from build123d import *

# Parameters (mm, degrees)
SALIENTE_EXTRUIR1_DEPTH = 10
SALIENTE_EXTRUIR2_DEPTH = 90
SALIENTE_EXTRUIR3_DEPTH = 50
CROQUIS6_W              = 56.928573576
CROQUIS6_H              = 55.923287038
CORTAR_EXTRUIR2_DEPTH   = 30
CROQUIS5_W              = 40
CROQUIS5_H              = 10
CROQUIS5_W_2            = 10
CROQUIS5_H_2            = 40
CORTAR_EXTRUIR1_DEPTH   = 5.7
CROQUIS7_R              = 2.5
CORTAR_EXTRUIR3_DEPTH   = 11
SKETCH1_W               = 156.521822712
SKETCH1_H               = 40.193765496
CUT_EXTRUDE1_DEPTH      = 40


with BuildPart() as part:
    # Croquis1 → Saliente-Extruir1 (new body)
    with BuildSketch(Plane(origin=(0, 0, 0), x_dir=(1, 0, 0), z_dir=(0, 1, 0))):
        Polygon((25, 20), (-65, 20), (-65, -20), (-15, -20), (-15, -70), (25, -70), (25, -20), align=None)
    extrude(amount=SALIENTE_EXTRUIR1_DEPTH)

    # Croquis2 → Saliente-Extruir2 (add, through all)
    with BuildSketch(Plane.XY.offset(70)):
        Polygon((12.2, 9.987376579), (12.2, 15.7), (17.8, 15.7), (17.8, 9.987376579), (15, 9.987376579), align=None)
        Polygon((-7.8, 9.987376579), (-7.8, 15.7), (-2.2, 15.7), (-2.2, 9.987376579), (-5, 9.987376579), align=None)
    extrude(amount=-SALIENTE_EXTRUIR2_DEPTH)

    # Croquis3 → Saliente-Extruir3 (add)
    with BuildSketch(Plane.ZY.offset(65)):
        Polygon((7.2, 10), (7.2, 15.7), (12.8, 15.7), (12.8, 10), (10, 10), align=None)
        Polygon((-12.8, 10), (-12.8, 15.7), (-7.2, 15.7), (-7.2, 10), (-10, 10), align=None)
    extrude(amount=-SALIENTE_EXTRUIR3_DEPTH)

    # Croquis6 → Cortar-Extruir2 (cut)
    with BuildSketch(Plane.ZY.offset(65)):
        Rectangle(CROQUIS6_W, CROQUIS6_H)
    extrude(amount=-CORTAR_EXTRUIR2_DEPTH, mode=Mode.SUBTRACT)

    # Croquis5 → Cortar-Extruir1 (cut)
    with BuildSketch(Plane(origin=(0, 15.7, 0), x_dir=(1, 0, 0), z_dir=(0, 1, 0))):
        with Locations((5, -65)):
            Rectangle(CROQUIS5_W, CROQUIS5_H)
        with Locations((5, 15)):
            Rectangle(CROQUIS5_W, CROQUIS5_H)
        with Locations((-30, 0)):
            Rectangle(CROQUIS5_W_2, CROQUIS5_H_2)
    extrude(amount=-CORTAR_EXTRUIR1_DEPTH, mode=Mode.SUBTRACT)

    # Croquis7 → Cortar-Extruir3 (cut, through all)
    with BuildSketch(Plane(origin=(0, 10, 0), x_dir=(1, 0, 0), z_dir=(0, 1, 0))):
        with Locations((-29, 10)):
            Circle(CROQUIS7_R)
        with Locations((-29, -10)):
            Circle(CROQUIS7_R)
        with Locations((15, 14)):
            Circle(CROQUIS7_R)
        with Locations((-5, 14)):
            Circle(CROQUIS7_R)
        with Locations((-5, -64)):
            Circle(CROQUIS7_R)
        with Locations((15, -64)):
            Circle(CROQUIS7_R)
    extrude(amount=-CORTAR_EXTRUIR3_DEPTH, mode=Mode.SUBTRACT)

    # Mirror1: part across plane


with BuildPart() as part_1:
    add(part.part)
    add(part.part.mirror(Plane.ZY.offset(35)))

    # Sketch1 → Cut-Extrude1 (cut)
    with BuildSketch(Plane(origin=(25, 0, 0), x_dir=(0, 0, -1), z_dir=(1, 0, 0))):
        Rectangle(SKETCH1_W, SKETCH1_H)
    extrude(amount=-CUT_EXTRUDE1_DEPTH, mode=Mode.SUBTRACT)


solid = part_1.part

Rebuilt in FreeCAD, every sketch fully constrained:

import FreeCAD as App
import Part
import Sketcher
from FreeCAD import Vector
Q = App.Units.Quantity

doc = App.newDocument("Part")
body = doc.addObject("PartDesign::Body", "Body")

# Sketch on XZ plane
sketch1 = doc.addObject("Sketcher::SketchObject", "Sketch")
body.addObject(sketch1)
sketch1.AttachmentSupport = (doc.XZ_Plane, [""])
sketch1.MapMode = "FlatFace"
sketch1.addGeometry(Part.LineSegment(Vector(25, -20, 0), Vector(-65, -20, 0)), False)
sketch1.addGeometry(Part.LineSegment(Vector(-65, -20, 0), Vector(-65, 20, 0)), False)
sketch1.addGeometry(Part.LineSegment(Vector(-65, 20, 0), Vector(-15, 20, 0)), False)
sketch1.addGeometry(Part.LineSegment(Vector(-15, 20, 0), Vector(-15, 70, 0)), False)
sketch1.addGeometry(Part.LineSegment(Vector(-15, 70, 0), Vector(25, 70, 0)), False)
sketch1.addGeometry(Part.LineSegment(Vector(25, 70, 0), Vector(25, -20, 0)), False)
sketch1.addConstraint(Sketcher.Constraint("Coincident", 0, 2, 1, 1))
sketch1.addConstraint(Sketcher.Constraint("Coincident", 1, 2, 2, 1))
sketch1.addConstraint(Sketcher.Constraint("Coincident", 2, 2, 3, 1))
sketch1.addConstraint(Sketcher.Constraint("Coincident", 3, 2, 4, 1))
sketch1.addConstraint(Sketcher.Constraint("Coincident", 4, 2, 5, 1))
sketch1.addConstraint(Sketcher.Constraint("Coincident", 5, 2, 0, 1))
sketch1.addConstraint(Sketcher.Constraint("Horizontal", 0))
sketch1.addConstraint(Sketcher.Constraint("Vertical", 1))
sketch1.addConstraint(Sketcher.Constraint("Horizontal", 2))
sketch1.addConstraint(Sketcher.Constraint("Vertical", 3))
sketch1.addConstraint(Sketcher.Constraint("Horizontal", 4))
sketch1.addConstraint(Sketcher.Constraint("Vertical", 5))
sketch1.addConstraint(Sketcher.Constraint("Equal", 4, 1))
sketch1.addConstraint(Sketcher.Constraint("Equal", 2, 3))
sketch1.addConstraint(Sketcher.Constraint("DistanceX", 0, 2, 0, 1, Q("90 mm")))
sketch1.addConstraint(Sketcher.Constraint("DistanceX", 2, 1, 2, 2, Q("50 mm")))
sketch1.addConstraint(Sketcher.Constraint("DistanceX", 0, 2, -1, 1, Q("65 mm")))
sketch1.addConstraint(Sketcher.Constraint("DistanceY", 0, 2, -1, 1, Q("20 mm")))
pad1 = doc.addObject("PartDesign::Pad", "Pad")
body.addObject(pad1)
pad1.Profile = sketch1
pad1.Length = 10
pad1.Reversed = True

# Sketch on XY plane
sketch2 = doc.addObject("Sketcher::SketchObject", "Sketch001")
body.addObject(sketch2)
sketch2.AttachmentSupport = (doc.XY_Plane, [""])
sketch2.MapMode = "FlatFace"
sketch2.AttachmentOffset = App.Placement(Vector(0, 0, 70), App.Rotation())
sketch2.addGeometry(Part.LineSegment(Vector(12.2, 15.7, 0), Vector(12.2, 9.987377, 0)), False)
sketch2.addGeometry(Part.LineSegment(Vector(12.2, 9.987377, 0), Vector(17.8, 9.987377, 0)), False)
sketch2.addGeometry(Part.LineSegment(Vector(17.8, 9.987377, 0), Vector(17.8, 15.7, 0)), False)
sketch2.addGeometry(Part.LineSegment(Vector(17.8, 15.7, 0), Vector(12.2, 15.7, 0)), False)
sketch2.addGeometry(Part.LineSegment(Vector(-7.8, 15.7, 0), Vector(-7.8, 9.987377, 0)), False)
sketch2.addGeometry(Part.LineSegment(Vector(-7.8, 9.987377, 0), Vector(-2.2, 9.987377, 0)), False)
sketch2.addGeometry(Part.LineSegment(Vector(-2.2, 9.987377, 0), Vector(-2.2, 15.7, 0)), False)
sketch2.addGeometry(Part.LineSegment(Vector(-2.2, 15.7, 0), Vector(-7.8, 15.7, 0)), False)
sketch2.addConstraint(Sketcher.Constraint("Coincident", 0, 2, 1, 1))
sketch2.addConstraint(Sketcher.Constraint("Coincident", 1, 2, 2, 1))
sketch2.addConstraint(Sketcher.Constraint("Coincident", 2, 2, 3, 1))
sketch2.addConstraint(Sketcher.Constraint("Coincident", 3, 2, 0, 1))
sketch2.addConstraint(Sketcher.Constraint("Coincident", 4, 2, 5, 1))
sketch2.addConstraint(Sketcher.Constraint("Coincident", 5, 2, 6, 1))
sketch2.addConstraint(Sketcher.Constraint("Coincident", 6, 2, 7, 1))
sketch2.addConstraint(Sketcher.Constraint("Coincident", 7, 2, 4, 1))
sketch2.addConstraint(Sketcher.Constraint("Vertical", 0))
sketch2.addConstraint(Sketcher.Constraint("Horizontal", 1))
sketch2.addConstraint(Sketcher.Constraint("Vertical", 2))
sketch2.addConstraint(Sketcher.Constraint("Horizontal", 3))
sketch2.addConstraint(Sketcher.Constraint("Vertical", 4))
sketch2.addConstraint(Sketcher.Constraint("Horizontal", 5))
sketch2.addConstraint(Sketcher.Constraint("Vertical", 6))
sketch2.addConstraint(Sketcher.Constraint("Horizontal", 7))
sketch2.addConstraint(Sketcher.Constraint("Horizontal", 1, 2, 4, 2))
sketch2.addConstraint(Sketcher.Constraint("Horizontal", 3, 2, 6, 2))
sketch2.addConstraint(Sketcher.Constraint("Equal", 3, 5))
sketch2.addConstraint(Sketcher.Constraint("DistanceX", 1, 1, 1, 2, Q("5.6 mm")))
sketch2.addConstraint(Sketcher.Constraint("DistanceX", 4, 2, 0, 2, Q("20 mm")))
sketch2.addConstraint(Sketcher.Constraint("DistanceX", -1, 1, 0, 2, Q("12.2 mm")))
sketch2.addConstraint(Sketcher.Constraint("DistanceY", -1, 1, 2, 2, Q("15.7 mm")))
sketch2.addConstraint(Sketcher.Constraint("DistanceY", 0, 2, 0, 1, Q("5.712623 mm")))
pad2 = doc.addObject("PartDesign::Pad", "Pad001")
body.addObject(pad2)
pad2.Profile = sketch2
pad2.Length = 90
pad2.Reversed = True

# Sketch on YZ plane
sketch3 = doc.addObject("Sketcher::SketchObject", "Sketch002")
body.addObject(sketch3)
sketch3.AttachmentSupport = (doc.YZ_Plane, [""])
sketch3.MapMode = "FlatFace"
sketch3.AttachmentOffset = App.Placement(Vector(0, 0, -65), App.Rotation())
sketch3.addGeometry(Part.LineSegment(Vector(15.7, 7.2, 0), Vector(10, 7.2, 0)), False)
sketch3.addGeometry(Part.LineSegment(Vector(10, 7.2, 0), Vector(10, 12.8, 0)), False)
sketch3.addGeometry(Part.LineSegment(Vector(10, 12.8, 0), Vector(15.7, 12.8, 0)), False)
sketch3.addGeometry(Part.LineSegment(Vector(15.7, 12.8, 0), Vector(15.7, 7.2, 0)), False)
sketch3.addGeometry(Part.LineSegment(Vector(15.7, -12.8, 0), Vector(10, -12.8, 0)), False)
sketch3.addGeometry(Part.LineSegment(Vector(10, -12.8, 0), Vector(10, -7.2, 0)), False)
sketch3.addGeometry(Part.LineSegment(Vector(10, -7.2, 0), Vector(15.7, -7.2, 0)), False)
sketch3.addGeometry(Part.LineSegment(Vector(15.7, -7.2, 0), Vector(15.7, -12.8, 0)), False)
sketch3.addConstraint(Sketcher.Constraint("Coincident", 0, 2, 1, 1))
sketch3.addConstraint(Sketcher.Constraint("Coincident", 1, 2, 2, 1))
sketch3.addConstraint(Sketcher.Constraint("Coincident", 2, 2, 3, 1))
sketch3.addConstraint(Sketcher.Constraint("Coincident", 3, 2, 0, 1))
sketch3.addConstraint(Sketcher.Constraint("Coincident", 4, 2, 5, 1))
sketch3.addConstraint(Sketcher.Constraint("Coincident", 5, 2, 6, 1))
sketch3.addConstraint(Sketcher.Constraint("Coincident", 6, 2, 7, 1))
sketch3.addConstraint(Sketcher.Constraint("Coincident", 7, 2, 4, 1))
sketch3.addConstraint(Sketcher.Constraint("Horizontal", 0))
sketch3.addConstraint(Sketcher.Constraint("Vertical", 1))
sketch3.addConstraint(Sketcher.Constraint("Horizontal", 2))
sketch3.addConstraint(Sketcher.Constraint("Vertical", 3))
sketch3.addConstraint(Sketcher.Constraint("Horizontal", 4))
sketch3.addConstraint(Sketcher.Constraint("Vertical", 5))
sketch3.addConstraint(Sketcher.Constraint("Horizontal", 6))
sketch3.addConstraint(Sketcher.Constraint("Vertical", 7))
sketch3.addConstraint(Sketcher.Constraint("Symmetric", 1, 2, 4, 2, -1))
sketch3.addConstraint(Sketcher.Constraint("Symmetric", 3, 2, 6, 2, -1))
sketch3.addConstraint(Sketcher.Constraint("DistanceX", 0, 2, 0, 1, Q("5.7 mm")))
sketch3.addConstraint(Sketcher.Constraint("DistanceY", 1, 1, 1, 2, Q("5.6 mm")))
sketch3.addConstraint(Sketcher.Constraint("DistanceX", -1, 1, 0, 2, Q("10 mm")))
sketch3.addConstraint(Sketcher.Constraint("DistanceY", 4, 2, 0, 2, Q("20 mm")))
pad3 = doc.addObject("PartDesign::Pad", "Pad002")
body.addObject(pad3)
pad3.Profile = sketch3
pad3.Length = 50

# Sketch on YZ plane
sketch4 = doc.addObject("Sketcher::SketchObject", "Sketch003")
body.addObject(sketch4)
sketch4.AttachmentSupport = (doc.YZ_Plane, [""])
sketch4.MapMode = "FlatFace"
sketch4.AttachmentOffset = App.Placement(Vector(0, 0, -65), App.Rotation())
sketch4.addGeometry(Part.LineSegment(Vector(27.961644, -28.464287, 0), Vector(-27.961644, -28.464287, 0)), False)
sketch4.addGeometry(Part.LineSegment(Vector(-27.961644, -28.464287, 0), Vector(-27.961644, 28.464287, 0)), False)
sketch4.addGeometry(Part.LineSegment(Vector(-27.961644, 28.464287, 0), Vector(27.961644, 28.464287, 0)), False)
sketch4.addGeometry(Part.LineSegment(Vector(27.961644, 28.464287, 0), Vector(27.961644, -28.464287, 0)), False)
sketch4.addConstraint(Sketcher.Constraint("Coincident", 0, 2, 1, 1))
sketch4.addConstraint(Sketcher.Constraint("Coincident", 1, 2, 2, 1))
sketch4.addConstraint(Sketcher.Constraint("Coincident", 2, 2, 3, 1))
sketch4.addConstraint(Sketcher.Constraint("Coincident", 3, 2, 0, 1))
sketch4.addConstraint(Sketcher.Constraint("Horizontal", 0))
sketch4.addConstraint(Sketcher.Constraint("Vertical", 1))
sketch4.addConstraint(Sketcher.Constraint("Horizontal", 2))
sketch4.addConstraint(Sketcher.Constraint("Vertical", 3))
sketch4.addConstraint(Sketcher.Constraint("Symmetric", 0, 2, 2, 2, -1, 1))
sketch4.addConstraint(Sketcher.Constraint("DistanceX", 0, 2, 0, 1, Q("55.923287 mm")))
sketch4.addConstraint(Sketcher.Constraint("DistanceY", 1, 1, 1, 2, Q("56.928574 mm")))
pocket1 = doc.addObject("PartDesign::Pocket", "Pocket")
body.addObject(pocket1)
pocket1.Profile = sketch4
pocket1.Length = 30
pocket1.Reversed = True

# Sketch on XZ plane
sketch5 = doc.addObject("Sketcher::SketchObject", "Sketch004")
body.addObject(sketch5)
sketch5.AttachmentSupport = (doc.XZ_Plane, [""])
sketch5.MapMode = "FlatFace"
sketch5.AttachmentOffset = App.Placement(Vector(0, 0, -15.7), App.Rotation())
sketch5.addGeometry(Part.LineSegment(Vector(-15, 60, 0), Vector(-15, 70, 0)), False)
sketch5.addGeometry(Part.LineSegment(Vector(-15, 70, 0), Vector(25, 70, 0)), False)
sketch5.addGeometry(Part.LineSegment(Vector(25, 70, 0), Vector(25, 60, 0)), False)
sketch5.addGeometry(Part.LineSegment(Vector(25, 60, 0), Vector(-15, 60, 0)), False)
sketch5.addGeometry(Part.LineSegment(Vector(-15, -20, 0), Vector(-15, -10, 0)), False)
sketch5.addGeometry(Part.LineSegment(Vector(-15, -10, 0), Vector(25, -10, 0)), False)
sketch5.addGeometry(Part.LineSegment(Vector(25, -10, 0), Vector(25, -20, 0)), False)
sketch5.addGeometry(Part.LineSegment(Vector(25, -20, 0), Vector(-15, -20, 0)), False)
sketch5.addGeometry(Part.LineSegment(Vector(-35, -20, 0), Vector(-35, 20, 0)), False)
sketch5.addGeometry(Part.LineSegment(Vector(-35, 20, 0), Vector(-25, 20, 0)), False)
sketch5.addGeometry(Part.LineSegment(Vector(-25, 20, 0), Vector(-25, -20, 0)), False)
sketch5.addGeometry(Part.LineSegment(Vector(-25, -20, 0), Vector(-35, -20, 0)), False)
sketch5.addConstraint(Sketcher.Constraint("Coincident", 0, 2, 1, 1))
sketch5.addConstraint(Sketcher.Constraint("Coincident", 1, 2, 2, 1))
sketch5.addConstraint(Sketcher.Constraint("Coincident", 2, 2, 3, 1))
sketch5.addConstraint(Sketcher.Constraint("Coincident", 3, 2, 0, 1))
sketch5.addConstraint(Sketcher.Constraint("Coincident", 4, 2, 5, 1))
sketch5.addConstraint(Sketcher.Constraint("Coincident", 5, 2, 6, 1))
sketch5.addConstraint(Sketcher.Constraint("Coincident", 6, 2, 7, 1))
sketch5.addConstraint(Sketcher.Constraint("Coincident", 7, 2, 4, 1))
sketch5.addConstraint(Sketcher.Constraint("Coincident", 8, 2, 9, 1))
sketch5.addConstraint(Sketcher.Constraint("Coincident", 9, 2, 10, 1))
sketch5.addConstraint(Sketcher.Constraint("Coincident", 10, 2, 11, 1))
sketch5.addConstraint(Sketcher.Constraint("Coincident", 11, 2, 8, 1))
sketch5.addConstraint(Sketcher.Constraint("Vertical", 0))
sketch5.addConstraint(Sketcher.Constraint("Horizontal", 1))
sketch5.addConstraint(Sketcher.Constraint("Vertical", 2))
sketch5.addConstraint(Sketcher.Constraint("Horizontal", 3))
sketch5.addConstraint(Sketcher.Constraint("Vertical", 4))
sketch5.addConstraint(Sketcher.Constraint("Horizontal", 5))
sketch5.addConstraint(Sketcher.Constraint("Vertical", 6))
sketch5.addConstraint(Sketcher.Constraint("Horizontal", 7))
sketch5.addConstraint(Sketcher.Constraint("Vertical", 8))
sketch5.addConstraint(Sketcher.Constraint("Horizontal", 9))
sketch5.addConstraint(Sketcher.Constraint("Vertical", 10))
sketch5.addConstraint(Sketcher.Constraint("Horizontal", 11))
sketch5.addConstraint(Sketcher.Constraint("Symmetric", 6, 2, 9, 2, -1, 1))
sketch5.addConstraint(Sketcher.Constraint("Horizontal", 7, 2, 10, 2))
sketch5.addConstraint(Sketcher.Constraint("Vertical", 3, 2, 4, 2))
sketch5.addConstraint(Sketcher.Constraint("Vertical", 2, 2, 5, 2))
sketch5.addConstraint(Sketcher.Constraint("Equal", 11, 0))
sketch5.addConstraint(Sketcher.Constraint("Equal", 2, 4))
sketch5.addConstraint(Sketcher.Constraint("Equal", 7, 8))
sketch5.addConstraint(Sketcher.Constraint("DistanceX", 1, 1, 1, 2, Q("40 mm")))
sketch5.addConstraint(Sketcher.Constraint("DistanceX", 9, 1, 9, 2, Q("10 mm")))
sketch5.addConstraint(Sketcher.Constraint("DistanceX", 0, 2, -1, 1, Q("15 mm")))
sketch5.addConstraint(Sketcher.Constraint("DistanceY", -1, 1, 0, 2, Q("70 mm")))
pocket2 = doc.addObject("PartDesign::Pocket", "Pocket001")
body.addObject(pocket2)
pocket2.Profile = sketch5
pocket2.Length = 5.7
pocket2.Reversed = True

# Sketch on XZ plane
sketch6 = doc.addObject("Sketcher::SketchObject", "Sketch005")
body.addObject(sketch6)
sketch6.AttachmentSupport = (doc.XZ_Plane, [""])
sketch6.MapMode = "FlatFace"
sketch6.AttachmentOffset = App.Placement(Vector(0, 0, -10), App.Rotation())
sketch6.addGeometry(Part.Circle(Vector(-29, -10, 0), Vector(0, 0, 1), 2.5), False)
sketch6.addGeometry(Part.Circle(Vector(-29, 10, 0), Vector(0, 0, 1), 2.5), False)
sketch6.addGeometry(Part.Circle(Vector(15, -14, 0), Vector(0, 0, 1), 2.5), False)
sketch6.addGeometry(Part.Circle(Vector(-5, -14, 0), Vector(0, 0, 1), 2.5), False)
sketch6.addGeometry(Part.Circle(Vector(-5, 64, 0), Vector(0, 0, 1), 2.5), False)
sketch6.addGeometry(Part.Circle(Vector(15, 64, 0), Vector(0, 0, 1), 2.5), False)
sketch6.addConstraint(Sketcher.Constraint("Equal", 0, 1))
sketch6.addConstraint(Sketcher.Constraint("Equal", 1, 2))
sketch6.addConstraint(Sketcher.Constraint("Equal", 2, 3))
sketch6.addConstraint(Sketcher.Constraint("Equal", 3, 4))
sketch6.addConstraint(Sketcher.Constraint("Equal", 4, 5))
sketch6.addConstraint(Sketcher.Constraint("Symmetric", 0, 3, 1, 3, -1))
sketch6.addConstraint(Sketcher.Constraint("Horizontal", 2, 3, 3, 3))
sketch6.addConstraint(Sketcher.Constraint("Horizontal", 4, 3, 5, 3))
sketch6.addConstraint(Sketcher.Constraint("Vertical", 3, 3, 4, 3))
sketch6.addConstraint(Sketcher.Constraint("Vertical", 2, 3, 5, 3))
sketch6.addConstraint(Sketcher.Constraint("Diameter", 0, Q("5 mm")))
sketch6.addConstraint(Sketcher.Constraint("DistanceX", 0, 3, -1, 1, Q("29 mm")))
sketch6.addConstraint(Sketcher.Constraint("DistanceY", 0, 3, -1, 1, Q("10 mm")))
sketch6.addConstraint(Sketcher.Constraint("DistanceX", -1, 1, 2, 3, Q("15 mm")))
sketch6.addConstraint(Sketcher.Constraint("DistanceY", 2, 3, -1, 1, Q("14 mm")))
sketch6.addConstraint(Sketcher.Constraint("DistanceX", 3, 3, -1, 1, Q("5 mm")))
sketch6.addConstraint(Sketcher.Constraint("DistanceY", -1, 1, 4, 3, Q("64 mm")))
pocket3 = doc.addObject("PartDesign::Pocket", "Pocket002")
body.addObject(pocket3)
pocket3.Profile = sketch6
pocket3.Type = "ThroughAll"
pocket3.Reversed = True
body2 = doc.addObject("PartDesign::Body", "Body001")
doc.recompute()

body2.BaseFeature = body
doc.recompute()

mirroring = doc.addObject("Part::Mirroring", "Mirroring")
mirroring.Source = body
mirroring.Base = Vector(-35, 0, 0)
mirroring.Normal = Vector(-1, 0, 0)
body3 = doc.addObject("PartDesign::Body", "Body002")
body3.BaseFeature = mirroring
boolean = doc.addObject("PartDesign::Boolean", "Boolean")
body2.addObject(boolean)
boolean.Type = "Fuse"
boolean.addObjects([body3])
doc.recompute()

# Sketch on YZ plane
sketch7 = doc.addObject("Sketcher::SketchObject", "Sketch006")
body2.addObject(sketch7)
sketch7.AttachmentSupport = (doc.getObject("YZ_Plane001"), [""])
sketch7.MapMode = "FlatFace"
sketch7.AttachmentOffset = App.Placement(Vector(0, 0, 25), App.Rotation())
sketch7.addGeometry(Part.LineSegment(Vector(20.096883, 78.260911, 0), Vector(-20.096883, 78.260911, 0)), False)
sketch7.addGeometry(Part.LineSegment(Vector(-20.096883, 78.260911, 0), Vector(-20.096883, -78.260911, 0)), False)
sketch7.addGeometry(Part.LineSegment(Vector(-20.096883, -78.260911, 0), Vector(20.096883, -78.260911, 0)), False)
sketch7.addGeometry(Part.LineSegment(Vector(20.096883, -78.260911, 0), Vector(20.096883, 78.260911, 0)), False)
sketch7.addConstraint(Sketcher.Constraint("Coincident", 0, 2, 1, 1))
sketch7.addConstraint(Sketcher.Constraint("Coincident", 1, 2, 2, 1))
sketch7.addConstraint(Sketcher.Constraint("Coincident", 2, 2, 3, 1))
sketch7.addConstraint(Sketcher.Constraint("Coincident", 3, 2, 0, 1))
sketch7.addConstraint(Sketcher.Constraint("Horizontal", 0))
sketch7.addConstraint(Sketcher.Constraint("Vertical", 1))
sketch7.addConstraint(Sketcher.Constraint("Horizontal", 2))
sketch7.addConstraint(Sketcher.Constraint("Vertical", 3))
sketch7.addConstraint(Sketcher.Constraint("Symmetric", 0, 2, 2, 2, -1, 1))
sketch7.addConstraint(Sketcher.Constraint("DistanceX", 0, 2, 0, 1, Q("40.193765 mm")))
sketch7.addConstraint(Sketcher.Constraint("DistanceY", 1, 2, 1, 1, Q("156.521823 mm")))
pocket4 = doc.addObject("PartDesign::Pocket", "Pocket003")
body2.addObject(pocket4)
pocket4.Profile = sketch7
pocket4.Length = 40
mirroring.Visibility = False

doc.recompute()
